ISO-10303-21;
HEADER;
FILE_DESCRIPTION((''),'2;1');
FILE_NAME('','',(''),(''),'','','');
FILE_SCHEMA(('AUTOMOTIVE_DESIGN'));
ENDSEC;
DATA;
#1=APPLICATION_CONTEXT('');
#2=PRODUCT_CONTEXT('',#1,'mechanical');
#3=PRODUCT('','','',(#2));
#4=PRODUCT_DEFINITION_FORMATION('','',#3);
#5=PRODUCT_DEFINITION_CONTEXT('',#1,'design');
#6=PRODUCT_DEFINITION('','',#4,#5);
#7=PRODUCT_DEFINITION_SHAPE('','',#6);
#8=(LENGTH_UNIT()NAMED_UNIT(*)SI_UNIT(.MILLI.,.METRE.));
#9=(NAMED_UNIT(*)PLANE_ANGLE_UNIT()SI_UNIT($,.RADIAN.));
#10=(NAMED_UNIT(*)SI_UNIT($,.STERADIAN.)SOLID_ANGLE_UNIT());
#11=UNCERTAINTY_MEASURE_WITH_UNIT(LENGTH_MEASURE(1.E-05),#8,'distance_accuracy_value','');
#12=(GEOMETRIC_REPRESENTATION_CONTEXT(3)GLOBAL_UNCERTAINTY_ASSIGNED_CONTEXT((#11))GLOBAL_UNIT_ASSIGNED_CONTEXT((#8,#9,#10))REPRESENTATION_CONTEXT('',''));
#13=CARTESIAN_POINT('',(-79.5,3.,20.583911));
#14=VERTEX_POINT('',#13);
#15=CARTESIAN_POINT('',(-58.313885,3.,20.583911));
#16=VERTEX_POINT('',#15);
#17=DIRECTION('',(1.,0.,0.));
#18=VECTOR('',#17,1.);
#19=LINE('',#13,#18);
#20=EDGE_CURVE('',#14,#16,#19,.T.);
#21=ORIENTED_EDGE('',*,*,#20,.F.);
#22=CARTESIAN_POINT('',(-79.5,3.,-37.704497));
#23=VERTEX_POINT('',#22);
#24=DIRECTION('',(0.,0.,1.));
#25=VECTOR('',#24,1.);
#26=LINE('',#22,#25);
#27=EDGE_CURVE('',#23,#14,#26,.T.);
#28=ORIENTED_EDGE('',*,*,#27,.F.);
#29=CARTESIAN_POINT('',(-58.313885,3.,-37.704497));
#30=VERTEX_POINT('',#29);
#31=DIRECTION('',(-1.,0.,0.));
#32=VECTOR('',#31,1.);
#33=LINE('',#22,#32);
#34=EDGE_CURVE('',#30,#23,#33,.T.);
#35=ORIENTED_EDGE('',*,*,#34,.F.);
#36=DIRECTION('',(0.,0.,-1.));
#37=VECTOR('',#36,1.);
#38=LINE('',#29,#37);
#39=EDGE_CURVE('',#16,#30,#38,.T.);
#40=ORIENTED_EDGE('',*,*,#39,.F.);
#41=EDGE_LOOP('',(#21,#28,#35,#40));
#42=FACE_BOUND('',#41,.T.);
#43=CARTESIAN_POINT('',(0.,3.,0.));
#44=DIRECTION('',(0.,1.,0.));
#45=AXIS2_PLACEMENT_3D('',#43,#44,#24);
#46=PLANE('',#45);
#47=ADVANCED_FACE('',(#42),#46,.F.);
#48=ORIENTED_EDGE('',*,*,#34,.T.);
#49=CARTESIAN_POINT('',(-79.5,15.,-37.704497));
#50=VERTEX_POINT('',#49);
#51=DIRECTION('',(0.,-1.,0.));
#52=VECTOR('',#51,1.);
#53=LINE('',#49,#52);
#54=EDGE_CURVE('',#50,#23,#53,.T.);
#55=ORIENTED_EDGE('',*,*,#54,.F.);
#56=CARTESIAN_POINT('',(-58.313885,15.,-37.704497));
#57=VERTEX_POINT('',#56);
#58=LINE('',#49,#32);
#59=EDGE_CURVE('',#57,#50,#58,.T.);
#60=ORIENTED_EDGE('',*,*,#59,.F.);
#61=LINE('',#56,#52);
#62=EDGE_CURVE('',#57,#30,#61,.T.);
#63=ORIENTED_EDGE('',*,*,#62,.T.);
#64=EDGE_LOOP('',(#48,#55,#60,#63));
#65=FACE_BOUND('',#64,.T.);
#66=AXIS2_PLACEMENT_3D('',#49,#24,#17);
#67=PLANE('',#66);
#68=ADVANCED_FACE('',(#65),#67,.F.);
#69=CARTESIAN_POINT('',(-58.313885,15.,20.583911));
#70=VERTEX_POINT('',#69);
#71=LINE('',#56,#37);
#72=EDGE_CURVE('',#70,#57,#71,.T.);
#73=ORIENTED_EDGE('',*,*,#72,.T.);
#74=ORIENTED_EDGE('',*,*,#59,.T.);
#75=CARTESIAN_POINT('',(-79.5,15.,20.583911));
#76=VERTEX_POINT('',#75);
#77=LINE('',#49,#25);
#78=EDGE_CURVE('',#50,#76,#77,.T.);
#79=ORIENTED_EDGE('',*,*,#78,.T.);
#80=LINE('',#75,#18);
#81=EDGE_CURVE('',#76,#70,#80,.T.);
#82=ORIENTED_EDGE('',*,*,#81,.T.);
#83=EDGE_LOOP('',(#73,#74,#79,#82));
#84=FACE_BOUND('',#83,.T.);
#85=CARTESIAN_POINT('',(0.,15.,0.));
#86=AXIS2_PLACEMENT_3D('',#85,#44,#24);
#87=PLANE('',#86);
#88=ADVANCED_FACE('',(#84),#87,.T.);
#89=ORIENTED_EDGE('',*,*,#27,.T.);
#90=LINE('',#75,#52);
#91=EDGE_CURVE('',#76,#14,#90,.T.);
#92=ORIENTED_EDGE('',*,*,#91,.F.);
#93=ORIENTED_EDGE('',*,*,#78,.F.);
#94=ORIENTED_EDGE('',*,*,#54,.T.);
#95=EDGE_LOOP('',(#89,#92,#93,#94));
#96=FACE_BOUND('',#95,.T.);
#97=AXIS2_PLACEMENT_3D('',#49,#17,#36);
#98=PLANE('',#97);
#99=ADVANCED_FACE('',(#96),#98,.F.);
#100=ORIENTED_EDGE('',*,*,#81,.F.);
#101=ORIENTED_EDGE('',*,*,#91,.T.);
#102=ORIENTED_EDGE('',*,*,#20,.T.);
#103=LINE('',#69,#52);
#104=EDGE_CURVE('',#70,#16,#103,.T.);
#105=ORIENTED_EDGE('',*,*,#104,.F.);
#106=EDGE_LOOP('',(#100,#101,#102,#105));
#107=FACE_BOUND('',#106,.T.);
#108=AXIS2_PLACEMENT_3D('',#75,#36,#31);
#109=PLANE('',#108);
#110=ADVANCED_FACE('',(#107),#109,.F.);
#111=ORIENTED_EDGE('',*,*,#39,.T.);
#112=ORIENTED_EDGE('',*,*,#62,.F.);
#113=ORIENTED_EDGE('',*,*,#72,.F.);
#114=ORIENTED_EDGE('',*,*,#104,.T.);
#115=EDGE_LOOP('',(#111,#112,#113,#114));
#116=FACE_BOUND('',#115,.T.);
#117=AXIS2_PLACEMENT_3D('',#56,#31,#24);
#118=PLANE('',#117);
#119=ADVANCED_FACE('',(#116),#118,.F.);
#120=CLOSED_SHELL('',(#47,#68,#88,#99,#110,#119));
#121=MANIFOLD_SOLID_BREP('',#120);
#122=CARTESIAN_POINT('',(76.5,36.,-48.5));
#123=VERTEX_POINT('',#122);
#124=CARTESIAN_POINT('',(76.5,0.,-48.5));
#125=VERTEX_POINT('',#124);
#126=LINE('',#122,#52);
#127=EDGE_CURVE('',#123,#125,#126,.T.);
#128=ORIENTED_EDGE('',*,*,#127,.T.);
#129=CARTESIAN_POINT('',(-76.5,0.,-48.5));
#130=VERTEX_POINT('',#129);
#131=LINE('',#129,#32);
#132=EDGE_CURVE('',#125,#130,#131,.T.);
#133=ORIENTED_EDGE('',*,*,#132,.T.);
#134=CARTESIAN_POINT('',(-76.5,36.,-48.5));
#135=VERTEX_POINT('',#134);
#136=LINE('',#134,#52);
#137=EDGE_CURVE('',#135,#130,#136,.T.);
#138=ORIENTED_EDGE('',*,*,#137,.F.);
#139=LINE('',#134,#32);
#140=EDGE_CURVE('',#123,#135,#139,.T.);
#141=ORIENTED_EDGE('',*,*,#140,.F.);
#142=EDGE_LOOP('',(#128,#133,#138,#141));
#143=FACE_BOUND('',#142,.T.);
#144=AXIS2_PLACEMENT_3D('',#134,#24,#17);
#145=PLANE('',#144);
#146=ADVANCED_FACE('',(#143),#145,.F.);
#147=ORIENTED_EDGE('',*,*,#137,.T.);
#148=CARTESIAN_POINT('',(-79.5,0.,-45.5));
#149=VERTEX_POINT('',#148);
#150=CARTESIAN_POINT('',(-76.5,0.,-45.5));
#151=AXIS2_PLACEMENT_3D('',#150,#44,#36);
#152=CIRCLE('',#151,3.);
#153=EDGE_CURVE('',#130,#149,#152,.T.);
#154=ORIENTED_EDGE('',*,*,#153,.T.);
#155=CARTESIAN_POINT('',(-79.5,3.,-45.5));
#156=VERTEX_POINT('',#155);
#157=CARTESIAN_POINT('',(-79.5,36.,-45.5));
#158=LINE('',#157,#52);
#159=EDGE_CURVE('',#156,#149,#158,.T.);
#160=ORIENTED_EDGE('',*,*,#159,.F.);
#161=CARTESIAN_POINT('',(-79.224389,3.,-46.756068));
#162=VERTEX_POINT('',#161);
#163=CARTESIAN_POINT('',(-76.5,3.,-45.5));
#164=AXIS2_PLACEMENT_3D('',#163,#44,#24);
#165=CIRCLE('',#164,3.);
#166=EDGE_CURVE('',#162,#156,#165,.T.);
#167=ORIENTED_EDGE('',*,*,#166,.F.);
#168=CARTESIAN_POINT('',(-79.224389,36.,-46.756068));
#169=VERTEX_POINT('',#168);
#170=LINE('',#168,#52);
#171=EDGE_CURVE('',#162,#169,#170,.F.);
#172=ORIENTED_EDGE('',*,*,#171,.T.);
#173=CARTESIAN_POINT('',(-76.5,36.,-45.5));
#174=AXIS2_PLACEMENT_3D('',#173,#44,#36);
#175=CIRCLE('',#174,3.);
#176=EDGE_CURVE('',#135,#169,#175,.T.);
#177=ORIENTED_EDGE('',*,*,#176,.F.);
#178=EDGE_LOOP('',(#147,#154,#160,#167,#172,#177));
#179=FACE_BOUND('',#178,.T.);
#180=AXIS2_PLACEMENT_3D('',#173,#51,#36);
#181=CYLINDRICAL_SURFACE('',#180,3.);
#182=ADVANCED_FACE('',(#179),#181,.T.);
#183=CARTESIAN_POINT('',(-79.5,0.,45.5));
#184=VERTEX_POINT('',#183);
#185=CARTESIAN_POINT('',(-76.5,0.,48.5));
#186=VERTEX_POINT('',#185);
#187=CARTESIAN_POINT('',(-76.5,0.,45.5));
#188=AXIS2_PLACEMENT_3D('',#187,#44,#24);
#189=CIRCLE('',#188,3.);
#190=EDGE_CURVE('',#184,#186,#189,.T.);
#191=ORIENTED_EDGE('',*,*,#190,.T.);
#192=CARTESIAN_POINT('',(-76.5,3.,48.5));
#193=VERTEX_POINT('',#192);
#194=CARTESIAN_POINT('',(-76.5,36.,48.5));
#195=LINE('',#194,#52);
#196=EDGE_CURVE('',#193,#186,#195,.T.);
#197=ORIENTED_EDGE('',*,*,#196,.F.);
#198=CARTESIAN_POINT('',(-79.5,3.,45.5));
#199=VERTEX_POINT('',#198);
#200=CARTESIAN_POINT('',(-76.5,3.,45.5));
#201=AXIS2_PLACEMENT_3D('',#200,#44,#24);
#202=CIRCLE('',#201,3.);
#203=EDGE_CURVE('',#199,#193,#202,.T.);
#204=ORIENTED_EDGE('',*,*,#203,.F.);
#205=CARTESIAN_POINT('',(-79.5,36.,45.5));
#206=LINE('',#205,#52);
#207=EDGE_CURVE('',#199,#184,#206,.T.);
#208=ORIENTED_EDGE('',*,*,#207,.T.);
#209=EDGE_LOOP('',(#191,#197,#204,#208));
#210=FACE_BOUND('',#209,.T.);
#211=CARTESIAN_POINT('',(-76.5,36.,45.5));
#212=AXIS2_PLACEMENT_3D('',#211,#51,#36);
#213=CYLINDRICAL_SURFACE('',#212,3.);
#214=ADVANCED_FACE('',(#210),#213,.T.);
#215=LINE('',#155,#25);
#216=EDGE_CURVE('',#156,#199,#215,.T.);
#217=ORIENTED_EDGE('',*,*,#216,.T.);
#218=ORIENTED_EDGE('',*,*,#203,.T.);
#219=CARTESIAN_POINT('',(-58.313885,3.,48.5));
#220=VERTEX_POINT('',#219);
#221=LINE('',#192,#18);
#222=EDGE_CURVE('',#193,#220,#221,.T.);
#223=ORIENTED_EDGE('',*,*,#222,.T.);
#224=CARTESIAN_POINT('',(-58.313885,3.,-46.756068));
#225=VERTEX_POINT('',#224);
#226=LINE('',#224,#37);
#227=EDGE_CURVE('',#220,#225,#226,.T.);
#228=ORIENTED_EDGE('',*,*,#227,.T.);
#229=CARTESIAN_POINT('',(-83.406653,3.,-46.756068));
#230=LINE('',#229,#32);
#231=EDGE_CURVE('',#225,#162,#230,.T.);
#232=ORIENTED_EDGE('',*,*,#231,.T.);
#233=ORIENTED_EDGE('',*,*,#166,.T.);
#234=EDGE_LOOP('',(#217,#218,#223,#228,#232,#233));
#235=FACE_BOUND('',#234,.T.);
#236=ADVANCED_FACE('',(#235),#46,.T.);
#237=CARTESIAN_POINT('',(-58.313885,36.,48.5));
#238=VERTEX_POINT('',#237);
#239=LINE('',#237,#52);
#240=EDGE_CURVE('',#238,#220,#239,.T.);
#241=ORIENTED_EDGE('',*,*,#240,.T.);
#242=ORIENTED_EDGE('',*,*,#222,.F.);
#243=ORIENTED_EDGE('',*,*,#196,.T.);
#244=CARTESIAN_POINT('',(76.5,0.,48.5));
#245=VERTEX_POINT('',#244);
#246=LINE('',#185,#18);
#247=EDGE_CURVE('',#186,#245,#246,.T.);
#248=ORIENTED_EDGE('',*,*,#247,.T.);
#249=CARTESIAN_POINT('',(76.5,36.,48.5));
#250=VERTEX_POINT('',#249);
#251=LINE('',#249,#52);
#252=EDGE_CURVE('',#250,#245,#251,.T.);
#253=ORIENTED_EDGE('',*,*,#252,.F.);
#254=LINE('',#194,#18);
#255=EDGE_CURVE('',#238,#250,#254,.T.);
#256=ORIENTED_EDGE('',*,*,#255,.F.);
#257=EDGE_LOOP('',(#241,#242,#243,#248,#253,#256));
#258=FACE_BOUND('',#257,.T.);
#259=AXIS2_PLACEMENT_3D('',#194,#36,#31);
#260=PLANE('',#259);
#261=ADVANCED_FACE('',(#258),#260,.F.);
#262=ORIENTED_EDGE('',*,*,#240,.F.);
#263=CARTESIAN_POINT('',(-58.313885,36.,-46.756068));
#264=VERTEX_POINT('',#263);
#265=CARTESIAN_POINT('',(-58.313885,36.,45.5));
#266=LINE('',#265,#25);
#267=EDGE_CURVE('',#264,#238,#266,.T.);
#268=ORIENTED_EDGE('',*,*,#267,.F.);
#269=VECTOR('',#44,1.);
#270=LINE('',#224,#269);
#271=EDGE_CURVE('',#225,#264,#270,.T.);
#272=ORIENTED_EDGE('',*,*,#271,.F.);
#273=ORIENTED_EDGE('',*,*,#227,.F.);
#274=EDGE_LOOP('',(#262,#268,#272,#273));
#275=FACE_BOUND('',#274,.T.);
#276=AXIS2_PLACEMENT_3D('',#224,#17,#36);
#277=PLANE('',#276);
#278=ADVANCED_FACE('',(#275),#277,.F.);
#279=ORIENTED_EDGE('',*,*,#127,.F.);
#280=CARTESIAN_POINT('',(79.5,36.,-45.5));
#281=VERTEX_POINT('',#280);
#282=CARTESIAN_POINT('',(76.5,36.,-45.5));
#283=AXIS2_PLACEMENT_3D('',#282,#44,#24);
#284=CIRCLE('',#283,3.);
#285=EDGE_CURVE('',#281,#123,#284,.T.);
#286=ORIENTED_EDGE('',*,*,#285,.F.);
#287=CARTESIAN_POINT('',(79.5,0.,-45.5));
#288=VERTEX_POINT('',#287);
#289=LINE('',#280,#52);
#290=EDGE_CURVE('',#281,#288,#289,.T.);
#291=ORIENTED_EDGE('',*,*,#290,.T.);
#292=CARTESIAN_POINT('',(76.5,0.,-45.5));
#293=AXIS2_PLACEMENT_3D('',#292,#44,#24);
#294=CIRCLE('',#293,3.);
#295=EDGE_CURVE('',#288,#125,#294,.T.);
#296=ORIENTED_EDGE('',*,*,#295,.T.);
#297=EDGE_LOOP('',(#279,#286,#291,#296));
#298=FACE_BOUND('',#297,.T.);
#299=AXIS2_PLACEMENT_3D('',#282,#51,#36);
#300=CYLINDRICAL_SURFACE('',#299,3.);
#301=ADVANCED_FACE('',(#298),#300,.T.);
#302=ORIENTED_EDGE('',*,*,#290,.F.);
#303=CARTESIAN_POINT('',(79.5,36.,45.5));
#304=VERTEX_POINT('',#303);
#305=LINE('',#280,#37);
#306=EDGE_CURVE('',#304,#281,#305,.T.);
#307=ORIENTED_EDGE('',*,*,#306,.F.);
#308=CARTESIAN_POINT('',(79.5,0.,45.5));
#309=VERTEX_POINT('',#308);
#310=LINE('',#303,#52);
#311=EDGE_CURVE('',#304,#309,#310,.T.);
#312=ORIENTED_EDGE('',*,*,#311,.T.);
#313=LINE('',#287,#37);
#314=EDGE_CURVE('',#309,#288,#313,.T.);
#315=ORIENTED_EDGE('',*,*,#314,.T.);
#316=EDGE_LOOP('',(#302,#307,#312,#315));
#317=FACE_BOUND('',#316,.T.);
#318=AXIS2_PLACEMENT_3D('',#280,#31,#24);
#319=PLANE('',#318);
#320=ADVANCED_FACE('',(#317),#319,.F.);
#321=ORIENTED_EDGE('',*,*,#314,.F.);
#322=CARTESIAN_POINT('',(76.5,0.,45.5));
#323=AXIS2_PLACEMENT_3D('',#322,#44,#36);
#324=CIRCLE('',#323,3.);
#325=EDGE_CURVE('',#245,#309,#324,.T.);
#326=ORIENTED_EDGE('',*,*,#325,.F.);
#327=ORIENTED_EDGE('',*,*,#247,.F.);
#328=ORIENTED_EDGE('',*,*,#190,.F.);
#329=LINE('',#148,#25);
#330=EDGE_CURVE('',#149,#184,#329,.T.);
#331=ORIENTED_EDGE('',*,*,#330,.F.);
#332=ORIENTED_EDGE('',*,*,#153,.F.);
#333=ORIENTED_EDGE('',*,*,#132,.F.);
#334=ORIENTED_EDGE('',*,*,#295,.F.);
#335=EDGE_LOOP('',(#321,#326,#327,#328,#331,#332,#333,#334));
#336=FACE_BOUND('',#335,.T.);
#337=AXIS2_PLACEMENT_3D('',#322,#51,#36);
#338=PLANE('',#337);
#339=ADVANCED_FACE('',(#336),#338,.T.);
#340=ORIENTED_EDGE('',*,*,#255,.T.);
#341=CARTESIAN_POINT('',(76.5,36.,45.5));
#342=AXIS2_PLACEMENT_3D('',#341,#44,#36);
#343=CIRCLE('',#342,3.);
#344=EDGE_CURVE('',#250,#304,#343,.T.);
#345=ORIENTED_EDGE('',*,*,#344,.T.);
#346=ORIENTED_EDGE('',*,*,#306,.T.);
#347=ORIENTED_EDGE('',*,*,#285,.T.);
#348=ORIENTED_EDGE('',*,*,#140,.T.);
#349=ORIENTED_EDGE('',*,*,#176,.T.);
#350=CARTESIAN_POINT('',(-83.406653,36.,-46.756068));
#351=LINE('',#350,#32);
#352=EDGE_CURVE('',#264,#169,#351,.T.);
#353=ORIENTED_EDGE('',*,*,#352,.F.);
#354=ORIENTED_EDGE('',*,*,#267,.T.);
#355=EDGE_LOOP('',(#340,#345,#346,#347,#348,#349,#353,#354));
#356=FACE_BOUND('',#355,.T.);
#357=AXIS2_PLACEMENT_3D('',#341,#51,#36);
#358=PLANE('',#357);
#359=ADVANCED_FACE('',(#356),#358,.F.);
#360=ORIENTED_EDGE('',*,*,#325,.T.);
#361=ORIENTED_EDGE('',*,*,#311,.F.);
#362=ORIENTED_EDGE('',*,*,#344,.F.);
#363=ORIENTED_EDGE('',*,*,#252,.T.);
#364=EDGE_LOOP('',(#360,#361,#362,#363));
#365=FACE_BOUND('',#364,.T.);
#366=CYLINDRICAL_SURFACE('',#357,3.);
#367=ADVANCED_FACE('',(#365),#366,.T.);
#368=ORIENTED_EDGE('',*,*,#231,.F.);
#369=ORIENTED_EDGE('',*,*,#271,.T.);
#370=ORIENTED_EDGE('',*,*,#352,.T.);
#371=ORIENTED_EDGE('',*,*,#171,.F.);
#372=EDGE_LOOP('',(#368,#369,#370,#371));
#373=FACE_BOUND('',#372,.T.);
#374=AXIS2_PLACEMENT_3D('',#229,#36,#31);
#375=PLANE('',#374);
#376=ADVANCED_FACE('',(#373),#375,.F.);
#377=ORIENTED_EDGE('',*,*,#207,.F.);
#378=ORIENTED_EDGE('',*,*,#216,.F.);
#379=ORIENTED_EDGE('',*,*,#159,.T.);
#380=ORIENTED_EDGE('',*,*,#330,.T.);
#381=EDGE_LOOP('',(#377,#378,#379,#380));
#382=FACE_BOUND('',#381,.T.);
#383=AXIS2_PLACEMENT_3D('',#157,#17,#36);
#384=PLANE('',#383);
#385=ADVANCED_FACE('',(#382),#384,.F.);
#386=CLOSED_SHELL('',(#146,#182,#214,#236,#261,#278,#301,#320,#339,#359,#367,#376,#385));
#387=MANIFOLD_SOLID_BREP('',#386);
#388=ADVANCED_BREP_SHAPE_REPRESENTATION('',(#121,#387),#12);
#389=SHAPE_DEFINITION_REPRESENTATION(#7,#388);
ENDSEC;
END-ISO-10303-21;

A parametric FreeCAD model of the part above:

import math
import FreeCAD as App
import Part
import Sketcher

V = App.Vector

doc = App.newDocument("Part")
body = doc.addObject("PartDesign::Body", "Body")

# Sketch on XZ plane
sketch1 = body.newObject("Sketcher::SketchObject", "Sketch")
sketch1.AttachmentSupport = (doc.getObject("XZ_Plane"), [""])
sketch1.MapMode = "FlatFace"
sketch1.addGeometry([
    Part.LineSegment(V(76.5, -48.5, 0), V(-76.5, -48.5, 0)),  # 0
    Part.ArcOfCircle(Part.Circle(V(-76.5, -45.5, 0), V(0, 0, 1), 3), math.radians(180), math.radians(270)),  # 1
    Part.LineSegment(V(-79.5, -45.5, 0), V(-79.5, 45.5, 0)),  # 2
    Part.ArcOfCircle(Part.Circle(V(-76.5, 45.5, 0), V(0, 0, 1), 3), math.radians(90), math.radians(180)),  # 3
    Part.LineSegment(V(-76.5, 48.5, 0), V(76.5, 48.5, 0)),  # 4
    Part.ArcOfCircle(Part.Circle(V(76.5, 45.5, 0), V(0, 0, 1), 3), math.radians(0), math.radians(90)),  # 5
    Part.LineSegment(V(79.5, 45.5, 0), V(79.5, -45.5, 0)),  # 6
    Part.ArcOfCircle(Part.Circle(V(76.5, -45.5, 0), V(0, 0, 1), 3), math.radians(-90), math.radians(0)),  # 7
], False)
sketch1.addConstraint([
    Sketcher.Constraint("Tangent", 0, 2, 1, 2),
    Sketcher.Constraint("Tangent", 1, 1, 2, 1),
    Sketcher.Constraint("Tangent", 2, 2, 3, 2),
    Sketcher.Constraint("Tangent", 3, 1, 4, 1),
    Sketcher.Constraint("Tangent", 4, 2, 5, 2),
    Sketcher.Constraint("Tangent", 5, 1, 6, 1),
    Sketcher.Constraint("Tangent", 6, 2, 7, 2),
    Sketcher.Constraint("Tangent", 7, 1, 0, 1),
    Sketcher.Constraint("Horizontal", 0),
    Sketcher.Constraint("Vertical", 2),
    Sketcher.Constraint("Horizontal", 4),
    Sketcher.Constraint("Vertical", 6),
    Sketcher.Constraint("Equal", 1, 3),
    Sketcher.Constraint("Equal", 3, 5),
    Sketcher.Constraint("Equal", 5, 7),
    Sketcher.Constraint("Symmetric", 1, 3, 5, 3, -1, 1),
    Sketcher.Constraint("Radius", 1, 3.0),
    Sketcher.Constraint("DistanceX", 0, 2, 0, 1, 153.0),
    Sketcher.Constraint("DistanceY", 2, 1, 2, 2, 91.0),
])
pad1 = body.newObject("PartDesign::Pad", "Pad")
pad1.Profile = sketch1
pad1.Length = 36
pad1.Reversed = True

# Sketch on XZ plane
sketch2 = body.newObject("Sketcher::SketchObject", "Sketch001")
sketch2.AttachmentSupport = (doc.getObject("XZ_Plane"), [""])
sketch2.MapMode = "FlatFace"
sketch2.AttachmentOffset = App.Placement(V(0, 0, -36), App.Rotation())
sketch2.addGeometry([
    Part.LineSegment(V(-83, -47, 0), V(-83, 51, 0)),
    Part.LineSegment(V(-83, 51, 0), V(-58, 51, 0)),
    Part.LineSegment(V(-58, 51, 0), V(-58, -47, 0)),
    Part.LineSegment(V(-58, -47, 0), V(-83, -47, 0)),
], False)
sketch2.addConstraint([
    Sketcher.Constraint("Coincident", 0, 2, 1, 1),
    Sketcher.Constraint("Coincident", 1, 2, 2, 1),
    Sketcher.Constraint("Coincident", 2, 2, 3, 1),
    Sketcher.Constraint("Coincident", 3, 2, 0, 1),
    Sketcher.Constraint("Vertical", 0),
    Sketcher.Constraint("Horizontal", 1),
    Sketcher.Constraint("Vertical", 2),
    Sketcher.Constraint("Horizontal", 3),
    Sketcher.Constraint("DistanceX", 1, 1, 1, 2, 25.092768),
    Sketcher.Constraint("DistanceY", 0, 1, 0, 2, 98.018624),
    Sketcher.Constraint("DistanceY", 2, 2, -1, 1, 46.756068),
    Sketcher.Constraint("DistanceX", 0, 2, -1, 1, 83.406653),
])
pocket1 = body.newObject("PartDesign::Pocket", "Pocket")
pocket1.Profile = sketch2
pocket1.Length = 33
pocket1.Reversed = True
body2 = doc.addObject("PartDesign::Body", "Body001")

# Sketch on XZ plane
sketch3 = body2.newObject("Sketcher::SketchObject", "Sketch002")
sketch3.AttachmentSupport = (doc.getObject("XZ_Plane001"), [""])
sketch3.MapMode = "FlatFace"
sketch3.AttachmentOffset = App.Placement(V(0, 0, -3), App.Rotation())
sketch3.addGeometry([
    Part.LineSegment(V(-80, -38, 0), V(-80, 21, 0)),
    Part.LineSegment(V(-80, 21, 0), V(-58, 21, 0)),
    Part.LineSegment(V(-58, 21, 0), V(-58, -38, 0)),
    Part.LineSegment(V(-58, -38, 0), V(-80, -38, 0)),
], False)
sketch3.addConstraint([
    Sketcher.Constraint("Coincident", 0, 2, 1, 1),
    Sketcher.Constraint("Coincident", 1, 2, 2, 1),
    Sketcher.Constraint("Coincident", 2, 2, 3, 1),
    Sketcher.Constraint("Coincident", 3, 2, 0, 1),
    Sketcher.Constraint("Vertical", 0),
    Sketcher.Constraint("Horizontal", 1),
    Sketcher.Constraint("Vertical", 2),
    Sketcher.Constraint("Horizontal", 3),
    Sketcher.Constraint("DistanceX", 0, 2, -1, 1, 79.5),
    Sketcher.Constraint("DistanceY", 0, 1, 0, 2, 58.288408),
    Sketcher.Constraint("DistanceX", 1, 1, 1, 2, 21.186115),
    Sketcher.Constraint("DistanceY", -1, 1, 0, 2, 20.583911),
])
pad2 = body2.newObject("PartDesign::Pad", "Pad001")
pad2.Profile = sketch3
pad2.Length = 12
pad2.Reversed = True

doc.recompute()
